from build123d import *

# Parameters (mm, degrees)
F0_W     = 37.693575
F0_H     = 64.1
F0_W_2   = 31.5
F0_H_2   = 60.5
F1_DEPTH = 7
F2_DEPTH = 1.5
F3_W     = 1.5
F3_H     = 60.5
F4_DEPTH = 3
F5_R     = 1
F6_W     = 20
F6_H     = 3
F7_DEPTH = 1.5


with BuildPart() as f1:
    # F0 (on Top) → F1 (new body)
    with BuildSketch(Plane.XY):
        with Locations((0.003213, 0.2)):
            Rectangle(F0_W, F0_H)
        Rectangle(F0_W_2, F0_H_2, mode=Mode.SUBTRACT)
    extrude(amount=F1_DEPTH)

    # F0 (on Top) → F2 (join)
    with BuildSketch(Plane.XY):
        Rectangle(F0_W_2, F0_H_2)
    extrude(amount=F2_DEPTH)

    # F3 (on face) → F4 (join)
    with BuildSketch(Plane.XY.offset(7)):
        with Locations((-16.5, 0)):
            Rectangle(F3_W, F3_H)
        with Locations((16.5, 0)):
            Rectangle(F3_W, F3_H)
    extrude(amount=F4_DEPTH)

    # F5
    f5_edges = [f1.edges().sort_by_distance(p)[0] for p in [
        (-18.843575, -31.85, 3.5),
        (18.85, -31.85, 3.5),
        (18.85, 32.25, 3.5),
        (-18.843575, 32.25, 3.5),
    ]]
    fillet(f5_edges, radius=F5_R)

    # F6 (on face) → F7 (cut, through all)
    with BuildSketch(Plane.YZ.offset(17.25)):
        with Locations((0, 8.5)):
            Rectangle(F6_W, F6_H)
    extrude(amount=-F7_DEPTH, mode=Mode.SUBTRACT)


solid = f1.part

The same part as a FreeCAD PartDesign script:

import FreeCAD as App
import Part
import Sketcher

V = App.Vector
Q = App.Units.Quantity


def edges_at(feature, points):
    """Names of the edges that pass closest to the given points."""
    edges = feature.Shape.Edges
    near = lambda p: min(range(len(edges)), key=lambda i: edges[i].distToShape(Part.Vertex(*p))[0])
    return sorted({f"Edge{near(p) + 1}" for p in points})

doc = App.newDocument("Part")
body = doc.addObject("PartDesign::Body", "Body")

sketch1 = doc.addObject("Sketcher::SketchObject", "Sketch")
body.addObject(sketch1)
sketch1.AttachmentSupport = (doc.XY_Plane, [""])
sketch1.MapMode = "FlatFace"
sketch1.addGeometry(Part.LineSegment(V(-18.843574, 32.25, 0), V(-18.843574, -31.85, 0)), False)
sketch1.addGeometry(Part.LineSegment(V(-18.843574, -31.85, 0), V(18.850001, -31.85, 0)), False)
sketch1.addGeometry(Part.LineSegment(V(18.850001, -31.85, 0), V(18.850001, 32.25, 0)), False)
sketch1.addGeometry(Part.LineSegment(V(18.850001, 32.25, 0), V(-18.843574, 32.25, 0)), False)
sketch1.addGeometry(Part.LineSegment(V(15.75, -30.25, 0), V(-15.75, -30.25, 0)), False)
sketch1.addGeometry(Part.LineSegment(V(-15.75, -30.25, 0), V(-15.75, 30.25, 0)), False)
sketch1.addGeometry(Part.LineSegment(V(-15.75, 30.25, 0), V(15.75, 30.25, 0)), False)
sketch1.addGeometry(Part.LineSegment(V(15.75, 30.25, 0), V(15.75, -30.25, 0)), False)
sketch1.addConstraint(Sketcher.Constraint("Coincident", 0, 2, 1, 1))
sketch1.addConstraint(Sketcher.Constraint("Coincident", 1, 2, 2, 1))
sketch1.addConstraint(Sketcher.Constraint("Coincident", 2, 2, 3, 1))
sketch1.addConstraint(Sketcher.Constraint("Coincident", 3, 2, 0, 1))
sketch1.addConstraint(Sketcher.Constraint("Coincident", 4, 2, 5, 1))
sketch1.addConstraint(Sketcher.Constraint("Coincident", 5, 2, 6, 1))
sketch1.addConstraint(Sketcher.Constraint("Coincident", 6, 2, 7, 1))
sketch1.addConstraint(Sketcher.Constraint("Coincident", 7, 2, 4, 1))
sketch1.addConstraint(Sketcher.Constraint("Vertical", 0))
sketch1.addConstraint(Sketcher.Constraint("Horizontal", 1))
sketch1.addConstraint(Sketcher.Constraint("Vertical", 2))
sketch1.addConstraint(Sketcher.Constraint("Horizontal", 3))
sketch1.addConstraint(Sketcher.Constraint("Horizontal", 4))
sketch1.addConstraint(Sketcher.Constraint("Vertical", 5))
sketch1.addConstraint(Sketcher.Constraint("Horizontal", 6))
sketch1.addConstraint(Sketcher.Constraint("Vertical", 7))
sketch1.addConstraint(Sketcher.Constraint("Symmetric", 4, 2, 6, 2, -1, 1))
sketch1.addConstraint(Sketcher.Constraint("DistanceX", 4, 2, 4, 1, Q("31.5 mm")))
sketch1.addConstraint(Sketcher.Constraint("DistanceY", 0, 2, 0, 1, Q("64.1 mm")))
sketch1.addConstraint(Sketcher.Constraint("DistanceY", 5, 1, 5, 2, Q("60.5 mm")))
sketch1.addConstraint(Sketcher.Constraint("DistanceY", 5, 2, 3, 2, Q("2 mm")))
sketch1.addConstraint(Sketcher.Constraint("DistanceX", 4, 2, 1, 2, Q("34.600001 mm")))
sketch1.addConstraint(Sketcher.Constraint("DistanceX", 1, 1, 1, 2, Q("37.693575 mm")))
pad1 = doc.addObject("PartDesign::Pad", "Pad")
body.addObject(pad1)
pad1.Profile = sketch1
pad1.Length = 7

sketch2 = doc.addObject("Sketcher::SketchObject", "Sketch001")
body.addObject(sketch2)
sketch2.AttachmentSupport = (doc.XY_Plane, [""])
sketch2.MapMode = "FlatFace"
sketch2.addGeometry(Part.LineSegment(V(-15.75, 30.25, 0), V(-15.75, -30.25, 0)), False)
sketch2.addGeometry(Part.LineSegment(V(-15.75, -30.25, 0), V(15.75, -30.25, 0)), False)
sketch2.addGeometry(Part.LineSegment(V(15.75, -30.25, 0), V(15.75, 30.25, 0)), False)
sketch2.addGeometry(Part.LineSegment(V(15.75, 30.25, 0), V(-15.75, 30.25, 0)), False)
sketch2.addConstraint(Sketcher.Constraint("Coincident", 0, 2, 1, 1))
sketch2.addConstraint(Sketcher.Constraint("Coincident", 1, 2, 2, 1))
sketch2.addConstraint(Sketcher.Constraint("Coincident", 2, 2, 3, 1))
sketch2.addConstraint(Sketcher.Constraint("Coincident", 3, 2, 0, 1))
sketch2.addConstraint(Sketcher.Constraint("Vertical", 0))
sketch2.addConstraint(Sketcher.Constraint("Horizontal", 1))
sketch2.addConstraint(Sketcher.Constraint("Vertical", 2))
sketch2.addConstraint(Sketcher.Constraint("Horizontal", 3))
sketch2.addConstraint(Sketcher.Constraint("Symmetric", 0, 2, 2, 2, -1, 1))
sketch2.addConstraint(Sketcher.Constraint("DistanceX", 1, 1, 1, 2, Q("31.5 mm")))
sketch2.addConstraint(Sketcher.Constraint("DistanceY", 0, 2, 0, 1, Q("60.5 mm")))
pad2 = doc.addObject("PartDesign::Pad", "Pad001")
body.addObject(pad2)
pad2.Profile = sketch2
pad2.Length = 1.5

sketch3 = doc.addObject("Sketcher::SketchObject", "Sketch002")
body.addObject(sketch3)
sketch3.AttachmentSupport = (doc.XY_Plane, [""])
sketch3.MapMode = "FlatFace"
sketch3.AttachmentOffset = App.Placement(V(0, 0, 7), App.Rotation())
sketch3.addGeometry(Part.LineSegment(V(-17.25, 30.25, 0), V(-17.25, -30.25, 0)), False)
sketch3.addGeometry(Part.LineSegment(V(-17.25, -30.25, 0), V(-15.75, -30.25, 0)), False)
sketch3.addGeometry(Part.LineSegment(V(-15.75, -30.25, 0), V(-15.75, 30.25, 0)), False)
sketch3.addGeometry(Part.LineSegment(V(-15.75, 30.25, 0), V(-17.25, 30.25, 0)), False)
sketch3.addGeometry(Part.LineSegment(V(15.75, 30.25, 0), V(15.75, -30.25, 0)), False)
sketch3.addGeometry(Part.LineSegment(V(15.75, -30.25, 0), V(17.25, -30.25, 0)), False)
sketch3.addGeometry(Part.LineSegment(V(17.25, -30.25, 0), V(17.25, 30.25, 0)), False)
sketch3.addGeometry(Part.LineSegment(V(17.25, 30.25, 0), V(15.75, 30.25, 0)), False)
sketch3.addConstraint(Sketcher.Constraint("Coincident", 0, 2, 1, 1))
sketch3.addConstraint(Sketcher.Constraint("Coincident", 1, 2, 2, 1))
sketch3.addConstraint(Sketcher.Constraint("Coincident", 2, 2, 3, 1))
sketch3.addConstraint(Sketcher.Constraint("Coincident", 3, 2, 0, 1))
sketch3.addConstraint(Sketcher.Constraint("Coincident", 4, 2, 5, 1))
sketch3.addConstraint(Sketcher.Constraint("Coincident", 5, 2, 6, 1))
sketch3.addConstraint(Sketcher.Constraint("Coincident", 6, 2, 7, 1))
sketch3.addConstraint(Sketcher.Constraint("Coincident", 7, 2, 4, 1))
sketch3.addConstraint(Sketcher.Constraint("Vertical", 0))
sketch3.addConstraint(Sketcher.Constraint("Horizontal", 1))
sketch3.addConstraint(Sketcher.Constraint("Vertical", 2))
sketch3.addConstraint(Sketcher.Constraint("Horizontal", 3))
sketch3.addConstraint(Sketcher.Constraint("Vertical", 4))
sketch3.addConstraint(Sketcher.Constraint("Horizontal", 5))
sketch3.addConstraint(Sketcher.Constraint("Vertical", 6))
sketch3.addConstraint(Sketcher.Constraint("Horizontal", 7))
sketch3.addConstraint(Sketcher.Constraint("Symmetric", 2, 2, 4, 2, -1, 1))
sketch3.addConstraint(Sketcher.Constraint("Symmetric", 0, 2, 6, 2, -1, 1))
sketch3.addConstraint(Sketcher.Constraint("Horizontal", 1, 2, 4, 2))
sketch3.addConstraint(Sketcher.Constraint("DistanceX", 1, 1, 1, 2, Q("1.5 mm")))
sketch3.addConstraint(Sketcher.Constraint("DistanceY", 0, 2, 0, 1, Q("60.5 mm")))
sketch3.addConstraint(Sketcher.Constraint("DistanceX", 0, 2, 4, 2, Q("33 mm")))
pad3 = doc.addObject("PartDesign::Pad", "Pad002")
body.addObject(pad3)
pad3.Profile = sketch3
pad3.Length = 3
doc.recompute()

fillet = doc.addObject("PartDesign::Fillet", "Fillet")
body.addObject(fillet)
fillet.Base = (pad3, edges_at(pad3, [
    (-18.844, -31.85, 3.5),
    (18.85, -31.85, 3.5),
    (18.85, 32.25, 3.5),
    (-18.844, 32.25, 3.5),
]))
fillet.Radius = 1

sketch4 = doc.addObject("Sketcher::SketchObject", "Sketch003")
body.addObject(sketch4)
sketch4.AttachmentSupport = (doc.YZ_Plane, [""])
sketch4.MapMode = "FlatFace"
sketch4.AttachmentOffset = App.Placement(V(0, 0, 17.25), App.Rotation())
sketch4.addGeometry(Part.LineSegment(V(-10, 10, 0), V(-10, 7, 0)), False)
sketch4.addGeometry(Part.LineSegment(V(-10, 7, 0), V(10, 7, 0)), False)
sketch4.addGeometry(Part.LineSegment(V(10, 7, 0), V(10, 10, 0)), False)
sketch4.addGeometry(Part.LineSegment(V(10, 10, 0), V(-10, 10, 0)), False)
sketch4.addConstraint(Sketcher.Constraint("Coincident", 0, 2, 1, 1))
sketch4.addConstraint(Sketcher.Constraint("Coincident", 1, 2, 2, 1))
sketch4.addConstraint(Sketcher.Constraint("Coincident", 2, 2, 3, 1))
sketch4.addConstraint(Sketcher.Constraint("Coincident", 3, 2, 0, 1))
sketch4.addConstraint(Sketcher.Constraint("Vertical", 0))
sketch4.addConstraint(Sketcher.Constraint("Horizontal", 1))
sketch4.addConstraint(Sketcher.Constraint("Vertical", 2))
sketch4.addConstraint(Sketcher.Constraint("Horizontal", 3))
sketch4.addConstraint(Sketcher.Constraint("DistanceX", 1, 1, 1, 2, Q("20 mm")))
sketch4.addConstraint(Sketcher.Constraint("DistanceY", 0, 2, 0, 1, Q("3 mm")))
sketch4.addConstraint(Sketcher.Constraint("DistanceX", 0, 2, -1, 1, Q("10 mm")))
sketch4.addConstraint(Sketcher.Constraint("DistanceY", -1, 1, 0, 2, Q("7 mm")))
pocket1 = doc.addObject("PartDesign::Pocket", "Pocket")
body.addObject(pocket1)
pocket1.Profile = sketch4
pocket1.Length = 1.5

doc.recompute()
